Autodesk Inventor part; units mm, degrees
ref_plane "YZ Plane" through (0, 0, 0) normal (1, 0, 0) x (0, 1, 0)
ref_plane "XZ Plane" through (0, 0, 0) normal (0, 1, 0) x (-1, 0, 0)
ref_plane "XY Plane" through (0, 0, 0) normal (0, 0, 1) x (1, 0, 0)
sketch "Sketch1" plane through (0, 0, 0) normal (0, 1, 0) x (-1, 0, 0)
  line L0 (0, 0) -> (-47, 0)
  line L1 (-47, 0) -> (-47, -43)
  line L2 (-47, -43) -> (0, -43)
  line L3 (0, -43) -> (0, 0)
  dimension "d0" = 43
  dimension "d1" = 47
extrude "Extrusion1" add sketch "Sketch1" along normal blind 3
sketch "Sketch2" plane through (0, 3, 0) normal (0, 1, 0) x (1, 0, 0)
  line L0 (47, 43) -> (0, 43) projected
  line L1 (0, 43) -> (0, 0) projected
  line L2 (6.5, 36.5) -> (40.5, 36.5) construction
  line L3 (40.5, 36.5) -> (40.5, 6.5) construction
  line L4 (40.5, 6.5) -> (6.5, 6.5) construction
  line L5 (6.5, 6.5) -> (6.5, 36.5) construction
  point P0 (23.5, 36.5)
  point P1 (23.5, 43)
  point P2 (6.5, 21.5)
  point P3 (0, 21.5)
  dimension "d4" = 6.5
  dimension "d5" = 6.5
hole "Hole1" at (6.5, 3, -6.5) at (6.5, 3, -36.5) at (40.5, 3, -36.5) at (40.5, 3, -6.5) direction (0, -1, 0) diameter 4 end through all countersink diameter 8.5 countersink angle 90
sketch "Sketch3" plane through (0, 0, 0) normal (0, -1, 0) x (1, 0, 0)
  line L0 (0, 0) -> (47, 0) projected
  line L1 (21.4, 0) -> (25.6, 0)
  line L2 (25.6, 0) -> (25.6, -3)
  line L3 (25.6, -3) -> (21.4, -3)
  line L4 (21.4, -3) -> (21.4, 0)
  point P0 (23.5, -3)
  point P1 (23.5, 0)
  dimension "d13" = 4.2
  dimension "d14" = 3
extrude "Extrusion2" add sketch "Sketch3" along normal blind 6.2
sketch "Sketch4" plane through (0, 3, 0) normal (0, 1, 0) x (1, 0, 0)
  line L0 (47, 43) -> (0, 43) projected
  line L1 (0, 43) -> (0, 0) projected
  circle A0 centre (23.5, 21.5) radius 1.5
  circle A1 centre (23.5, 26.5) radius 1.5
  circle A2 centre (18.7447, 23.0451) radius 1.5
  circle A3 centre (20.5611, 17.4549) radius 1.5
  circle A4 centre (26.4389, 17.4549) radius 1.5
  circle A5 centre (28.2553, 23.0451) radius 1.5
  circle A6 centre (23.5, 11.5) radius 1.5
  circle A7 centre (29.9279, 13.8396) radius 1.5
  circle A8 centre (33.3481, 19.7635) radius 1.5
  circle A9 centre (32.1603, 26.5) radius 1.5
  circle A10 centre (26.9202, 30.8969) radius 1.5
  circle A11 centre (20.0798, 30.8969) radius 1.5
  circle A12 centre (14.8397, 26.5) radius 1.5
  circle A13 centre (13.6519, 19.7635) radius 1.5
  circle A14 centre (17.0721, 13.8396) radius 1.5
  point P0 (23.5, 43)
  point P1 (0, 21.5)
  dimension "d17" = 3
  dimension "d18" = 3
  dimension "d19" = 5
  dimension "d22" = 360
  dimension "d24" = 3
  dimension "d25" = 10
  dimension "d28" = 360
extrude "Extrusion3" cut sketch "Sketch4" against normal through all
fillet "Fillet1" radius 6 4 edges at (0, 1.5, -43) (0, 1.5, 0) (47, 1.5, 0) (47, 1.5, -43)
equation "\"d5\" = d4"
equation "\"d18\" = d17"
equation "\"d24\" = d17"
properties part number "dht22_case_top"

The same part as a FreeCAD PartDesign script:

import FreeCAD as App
import Part
import Sketcher

V = App.Vector


def edges_at(feature, points):
    """Names of the edges that pass closest to the given points."""
    edges = feature.Shape.Edges
    near = lambda p: min(range(len(edges)), key=lambda i: edges[i].distToShape(Part.Vertex(*p))[0])
    return sorted({f"Edge{near(p) + 1}" for p in points})

doc = App.newDocument("Part")
body = doc.addObject("PartDesign::Body", "Body")

# Sketch on XZ plane
sketch1 = body.newObject("Sketcher::SketchObject", "Sketch")
sketch1.AttachmentSupport = (doc.getObject("XZ_Plane"), [""])
sketch1.MapMode = "FlatFace"
sketch1.addGeometry(Part.LineSegment(V(0, -43, 0), V(0, 0, 0)), False)
sketch1.addGeometry(Part.LineSegment(V(0, 0, 0), V(47, 0, 0)), False)
sketch1.addGeometry(Part.LineSegment(V(47, 0, 0), V(47, -43, 0)), False)
sketch1.addGeometry(Part.LineSegment(V(47, -43, 0), V(0, -43, 0)), False)
sketch1.addConstraint(Sketcher.Constraint("Coincident", 0, 2, 1, 1))
sketch1.addConstraint(Sketcher.Constraint("Coincident", 1, 2, 2, 1))
sketch1.addConstraint(Sketcher.Constraint("Coincident", 2, 2, 3, 1))
sketch1.addConstraint(Sketcher.Constraint("Coincident", 3, 2, 0, 1))
sketch1.addConstraint(Sketcher.Constraint("Vertical", 0))
sketch1.addConstraint(Sketcher.Constraint("Horizontal", 1))
sketch1.addConstraint(Sketcher.Constraint("Vertical", 2))
sketch1.addConstraint(Sketcher.Constraint("Horizontal", 3))
sketch1.addConstraint(Sketcher.Constraint("Coincident", 0, 2, -1, 1))
sketch1.addConstraint(Sketcher.Constraint("DistanceX", 1, 1, 1, 2, 47.0))
sketch1.addConstraint(Sketcher.Constraint("DistanceY", 0, 1, 0, 2, 43.0))
pad1 = body.newObject("PartDesign::Pad", "Pad")
pad1.Profile = sketch1
pad1.Length = 3
pad1.Reversed = True

# Sketch on XZ plane
sketch2 = body.newObject("Sketcher::SketchObject", "Sketch001")
sketch2.AttachmentSupport = (doc.getObject("XZ_Plane"), [""])
sketch2.MapMode = "FlatFace"
sketch2.AttachmentOffset = App.Placement(V(0, 0, -3), App.Rotation())
sketch2.addGeometry(Part.Circle(V(6.5, -6.5, 0), V(0, 0, 1), 2), False)
sketch2.addGeometry(Part.Circle(V(6.5, -36.5, 0), V(0, 0, 1), 2), False)
sketch2.addGeometry(Part.Circle(V(40.5, -36.5, 0), V(0, 0, 1), 2), False)
sketch2.addGeometry(Part.Circle(V(40.5, -6.5, 0), V(0, 0, 1), 2), False)
sketch2.addConstraint(Sketcher.Constraint("Equal", 0, 1))
sketch2.addConstraint(Sketcher.Constraint("Equal", 1, 2))
sketch2.addConstraint(Sketcher.Constraint("Equal", 2, 3))
sketch2.addConstraint(Sketcher.Constraint("Horizontal", 1, 3, 2, 3))
sketch2.addConstraint(Sketcher.Constraint("Horizontal", 0, 3, 3, 3))
sketch2.addConstraint(Sketcher.Constraint("Vertical", 0, 3, 1, 3))
sketch2.addConstraint(Sketcher.Constraint("Vertical", 2, 3, 3, 3))
sketch2.addConstraint(Sketcher.Constraint("Diameter", 0, 4.0))
sketch2.addConstraint(Sketcher.Constraint("DistanceY", 1, 3, 0, 3, 30.0))
sketch2.addConstraint(Sketcher.Constraint("DistanceX", 1, 3, 2, 3, 34.0))
sketch2.addConstraint(Sketcher.Constraint("DistanceX", -1, 1, 0, 3, 6.5))
sketch2.addConstraint(Sketcher.Constraint("DistanceY", 0, 3, -1, 1, 6.5))
doc.recompute()
hole = body.newObject("PartDesign::Hole", "Hole")
hole.Profile = sketch2
hole.ThreadType = "None"
hole.Diameter = 4
hole.DepthType = "ThroughAll"
hole.HoleCutType = "Countersink"
hole.HoleCutDiameter = 8.5
hole.HoleCutCountersinkAngle = 90
hole.Reversed = True

# Sketch on XZ plane
sketch3 = body.newObject("Sketcher::SketchObject", "Sketch002")
sketch3.AttachmentSupport = (doc.getObject("XZ_Plane"), [""])
sketch3.MapMode = "FlatFace"
sketch3.addGeometry(Part.LineSegment(V(25.6, 0, 0), V(21.4, 0, 0)), False)
sketch3.addGeometry(Part.LineSegment(V(21.4, 0, 0), V(21.4, -3, 0)), False)
sketch3.addGeometry(Part.LineSegment(V(21.4, -3, 0), V(25.6, -3, 0)), False)
sketch3.addGeometry(Part.LineSegment(V(25.6, -3, 0), V(25.6, 0, 0)), False)
sketch3.addConstraint(Sketcher.Constraint("Coincident", 0, 2, 1, 1))
sketch3.addConstraint(Sketcher.Constraint("Coincident", 1, 2, 2, 1))
sketch3.addConstraint(Sketcher.Constraint("Coincident", 2, 2, 3, 1))
sketch3.addConstraint(Sketcher.Constraint("Coincident", 3, 2, 0, 1))
sketch3.addConstraint(Sketcher.Constraint("Horizontal", 0))
sketch3.addConstraint(Sketcher.Constraint("Vertical", 1))
sketch3.addConstraint(Sketcher.Constraint("Horizontal", 2))
sketch3.addConstraint(Sketcher.Constraint("Vertical", 3))
sketch3.addConstraint(Sketcher.Constraint("PointOnObject", 0, 2, -1))
sketch3.addConstraint(Sketcher.Constraint("DistanceY", 1, 2, 1, 1, 3.0))
sketch3.addConstraint(Sketcher.Constraint("DistanceX", 0, 2, 0, 1, 4.2))
sketch3.addConstraint(Sketcher.Constraint("DistanceX", -1, 1, 0, 2, 21.4))
pad2 = body.newObject("PartDesign::Pad", "Pad001")
pad2.Profile = sketch3
pad2.Length = 6.2

# Sketch on XZ plane
sketch4 = body.newObject("Sketcher::SketchObject", "Sketch003")
sketch4.AttachmentSupport = (doc.getObject("XZ_Plane"), [""])
sketch4.MapMode = "FlatFace"
sketch4.AttachmentOffset = App.Placement(V(0, 0, -3), App.Rotation())
sketch4.addGeometry(Part.Circle(V(23.5, -21.5, 0), V(0, 0, 1), 1.5), False)
sketch4.addGeometry(Part.Circle(V(23.5, -26.5, 0), V(0, 0, 1), 1.5), False)
sketch4.addGeometry(Part.Circle(V(18.7, -23, 0), V(0, 0, 1), 1.5), False)
sketch4.addGeometry(Part.Circle(V(20.6, -17.5, 0), V(0, 0, 1), 1.5), False)
sketch4.addGeometry(Part.Circle(V(26.4, -17.5, 0), V(0, 0, 1), 1.5), False)
sketch4.addGeometry(Part.Circle(V(28.3, -23, 0), V(0, 0, 1), 1.5), False)
sketch4.addGeometry(Part.Circle(V(23.5, -11.5, 0), V(0, 0, 1), 1.5), False)
sketch4.addGeometry(Part.Circle(V(29.9, -13.8, 0), V(0, 0, 1), 1.5), False)
sketch4.addGeometry(Part.Circle(V(33.3, -19.8, 0), V(0, 0, 1), 1.5), False)
sketch4.addGeometry(Part.Circle(V(32.2, -26.5, 0), V(0, 0, 1), 1.5), False)
sketch4.addGeometry(Part.Circle(V(26.9, -30.9, 0), V(0, 0, 1), 1.5), False)
sketch4.addGeometry(Part.Circle(V(20.1, -30.9, 0), V(0, 0, 1), 1.5), False)
sketch4.addGeometry(Part.Circle(V(14.8, -26.5, 0), V(0, 0, 1), 1.5), False)
sketch4.addGeometry(Part.Circle(V(13.7, -19.8, 0), V(0, 0, 1), 1.5), False)
sketch4.addGeometry(Part.Circle(V(17.1, -13.8, 0), V(0, 0, 1), 1.5), False)
sketch4.addConstraint(Sketcher.Constraint("Equal", 0, 1))
sketch4.addConstraint(Sketcher.Constraint("Equal", 1, 2))
sketch4.addConstraint(Sketcher.Constraint("Equal", 2, 3))
sketch4.addConstraint(Sketcher.Constraint("Equal", 3, 4))
sketch4.addConstraint(Sketcher.Constraint("Equal", 4, 5))
sketch4.addConstraint(Sketcher.Constraint("Equal", 5, 6))
sketch4.addConstraint(Sketcher.Constraint("Equal", 6, 7))
sketch4.addConstraint(Sketcher.Constraint("Equal", 7, 8))
sketch4.addConstraint(Sketcher.Constraint("Equal", 8, 9))
sketch4.addConstraint(Sketcher.Constraint("Equal", 9, 10))
sketch4.addConstraint(Sketcher.Constraint("Equal", 10, 11))
sketch4.addConstraint(Sketcher.Constraint("Equal", 11, 12))
sketch4.addConstraint(Sketcher.Constraint("Equal", 12, 13))
sketch4.addConstraint(Sketcher.Constraint("Equal", 13, 14))
sketch4.addConstraint(Sketcher.Constraint("Horizontal", 3, 3, 4, 3))
sketch4.addConstraint(Sketcher.Constraint("Horizontal", 2, 3, 5, 3))
sketch4.addConstraint(Sketcher.Constraint("Horizontal", 1, 3, 9, 3))
sketch4.addConstraint(Sketcher.Constraint("Horizontal", 10, 3, 11, 3))
sketch4.addConstraint(Sketcher.Constraint("Horizontal", 9, 3, 12, 3))
sketch4.addConstraint(Sketcher.Constraint("Horizontal", 8, 3, 13, 3))
sketch4.addConstraint(Sketcher.Constraint("Horizontal", 7, 3, 14, 3))
sketch4.addConstraint(Sketcher.Constraint("Vertical", 0, 3, 1, 3))
sketch4.addConstraint(Sketcher.Constraint("Vertical", 1, 3, 6, 3))
sketch4.addConstraint(Sketcher.Constraint("Diameter", 0, 3.0))
sketch4.addConstraint(Sketcher.Constraint("DistanceY", 1, 3, 0, 3, 5.0))
sketch4.addConstraint(Sketcher.Constraint("DistanceY", 0, 3, 6, 3, 10.0))
sketch4.addConstraint(Sketcher.Constraint("DistanceX", -1, 1, 0, 3, 23.5))
sketch4.addConstraint(Sketcher.Constraint("DistanceY", 0, 3, -1, 1, 21.5))
sketch4.addConstraint(Sketcher.Constraint("DistanceX", 10, 3, 9, 3, 5.24))
sketch4.addConstraint(Sketcher.Constraint("DistanceX", 12, 3, 11, 3, 5.24))
sketch4.addConstraint(Sketcher.Constraint("DistanceY", 2, 3, -1, 1, 23.045))
sketch4.addConstraint(Sketcher.Constraint("DistanceX", -1, 1, 3, 3, 20.561))
sketch4.addConstraint(Sketcher.Constraint("DistanceY", 3, 3, -1, 1, 17.455))
sketch4.addConstraint(Sketcher.Constraint("DistanceX", -1, 1, 4, 3, 26.439))
sketch4.addConstraint(Sketcher.Constraint("DistanceX", -1, 1, 7, 3, 29.928))
sketch4.addConstraint(Sketcher.Constraint("DistanceX", -1, 1, 8, 3, 33.348))
sketch4.addConstraint(Sketcher.Constraint("DistanceY", 10, 3, -1, 1, 30.897))
sketch4.addConstraint(Sketcher.Constraint("DistanceX", -1, 1, 13, 3, 13.652))
sketch4.addConstraint(Sketcher.Constraint("DistanceX", -1, 1, 14, 3, 17.072))
sketch4.addConstraint(Sketcher.Constraint("DistanceY", 8, 3, 7, 3, 5.924))
sketch4.addConstraint(Sketcher.Constraint("DistanceX", 5, 3, 9, 3, 3.905))
sketch4.addConstraint(Sketcher.Constraint("DistanceX", 2, 3, 11, 3, 1.335))
sketch4.addConstraint(Sketcher.Constraint("DistanceX", -1, 1, 2, 3, 18.7447))
sketch4.addConstraint(Sketcher.Constraint("DistanceX", -1, 1, 5, 3, 28.2553))
sketch4.addConstraint(Sketcher.Constraint("DistanceY", 7, 3, -1, 1, 13.8396))
pocket1 = body.newObject("PartDesign::Pocket", "Pocket")
pocket1.Profile = sketch4
pocket1.Type = "ThroughAll"
pocket1.Reversed = True
doc.recompute()

fillet = body.newObject("PartDesign::Fillet", "Fillet")
fillet.Base = (pocket1, edges_at(pocket1, [
    (0, 1.5, -43),
    (0, 1.5, 0),
    (47, 1.5, 0),
    (47, 1.5, -43),
]))
fillet.Radius = 6

doc.recompute()
